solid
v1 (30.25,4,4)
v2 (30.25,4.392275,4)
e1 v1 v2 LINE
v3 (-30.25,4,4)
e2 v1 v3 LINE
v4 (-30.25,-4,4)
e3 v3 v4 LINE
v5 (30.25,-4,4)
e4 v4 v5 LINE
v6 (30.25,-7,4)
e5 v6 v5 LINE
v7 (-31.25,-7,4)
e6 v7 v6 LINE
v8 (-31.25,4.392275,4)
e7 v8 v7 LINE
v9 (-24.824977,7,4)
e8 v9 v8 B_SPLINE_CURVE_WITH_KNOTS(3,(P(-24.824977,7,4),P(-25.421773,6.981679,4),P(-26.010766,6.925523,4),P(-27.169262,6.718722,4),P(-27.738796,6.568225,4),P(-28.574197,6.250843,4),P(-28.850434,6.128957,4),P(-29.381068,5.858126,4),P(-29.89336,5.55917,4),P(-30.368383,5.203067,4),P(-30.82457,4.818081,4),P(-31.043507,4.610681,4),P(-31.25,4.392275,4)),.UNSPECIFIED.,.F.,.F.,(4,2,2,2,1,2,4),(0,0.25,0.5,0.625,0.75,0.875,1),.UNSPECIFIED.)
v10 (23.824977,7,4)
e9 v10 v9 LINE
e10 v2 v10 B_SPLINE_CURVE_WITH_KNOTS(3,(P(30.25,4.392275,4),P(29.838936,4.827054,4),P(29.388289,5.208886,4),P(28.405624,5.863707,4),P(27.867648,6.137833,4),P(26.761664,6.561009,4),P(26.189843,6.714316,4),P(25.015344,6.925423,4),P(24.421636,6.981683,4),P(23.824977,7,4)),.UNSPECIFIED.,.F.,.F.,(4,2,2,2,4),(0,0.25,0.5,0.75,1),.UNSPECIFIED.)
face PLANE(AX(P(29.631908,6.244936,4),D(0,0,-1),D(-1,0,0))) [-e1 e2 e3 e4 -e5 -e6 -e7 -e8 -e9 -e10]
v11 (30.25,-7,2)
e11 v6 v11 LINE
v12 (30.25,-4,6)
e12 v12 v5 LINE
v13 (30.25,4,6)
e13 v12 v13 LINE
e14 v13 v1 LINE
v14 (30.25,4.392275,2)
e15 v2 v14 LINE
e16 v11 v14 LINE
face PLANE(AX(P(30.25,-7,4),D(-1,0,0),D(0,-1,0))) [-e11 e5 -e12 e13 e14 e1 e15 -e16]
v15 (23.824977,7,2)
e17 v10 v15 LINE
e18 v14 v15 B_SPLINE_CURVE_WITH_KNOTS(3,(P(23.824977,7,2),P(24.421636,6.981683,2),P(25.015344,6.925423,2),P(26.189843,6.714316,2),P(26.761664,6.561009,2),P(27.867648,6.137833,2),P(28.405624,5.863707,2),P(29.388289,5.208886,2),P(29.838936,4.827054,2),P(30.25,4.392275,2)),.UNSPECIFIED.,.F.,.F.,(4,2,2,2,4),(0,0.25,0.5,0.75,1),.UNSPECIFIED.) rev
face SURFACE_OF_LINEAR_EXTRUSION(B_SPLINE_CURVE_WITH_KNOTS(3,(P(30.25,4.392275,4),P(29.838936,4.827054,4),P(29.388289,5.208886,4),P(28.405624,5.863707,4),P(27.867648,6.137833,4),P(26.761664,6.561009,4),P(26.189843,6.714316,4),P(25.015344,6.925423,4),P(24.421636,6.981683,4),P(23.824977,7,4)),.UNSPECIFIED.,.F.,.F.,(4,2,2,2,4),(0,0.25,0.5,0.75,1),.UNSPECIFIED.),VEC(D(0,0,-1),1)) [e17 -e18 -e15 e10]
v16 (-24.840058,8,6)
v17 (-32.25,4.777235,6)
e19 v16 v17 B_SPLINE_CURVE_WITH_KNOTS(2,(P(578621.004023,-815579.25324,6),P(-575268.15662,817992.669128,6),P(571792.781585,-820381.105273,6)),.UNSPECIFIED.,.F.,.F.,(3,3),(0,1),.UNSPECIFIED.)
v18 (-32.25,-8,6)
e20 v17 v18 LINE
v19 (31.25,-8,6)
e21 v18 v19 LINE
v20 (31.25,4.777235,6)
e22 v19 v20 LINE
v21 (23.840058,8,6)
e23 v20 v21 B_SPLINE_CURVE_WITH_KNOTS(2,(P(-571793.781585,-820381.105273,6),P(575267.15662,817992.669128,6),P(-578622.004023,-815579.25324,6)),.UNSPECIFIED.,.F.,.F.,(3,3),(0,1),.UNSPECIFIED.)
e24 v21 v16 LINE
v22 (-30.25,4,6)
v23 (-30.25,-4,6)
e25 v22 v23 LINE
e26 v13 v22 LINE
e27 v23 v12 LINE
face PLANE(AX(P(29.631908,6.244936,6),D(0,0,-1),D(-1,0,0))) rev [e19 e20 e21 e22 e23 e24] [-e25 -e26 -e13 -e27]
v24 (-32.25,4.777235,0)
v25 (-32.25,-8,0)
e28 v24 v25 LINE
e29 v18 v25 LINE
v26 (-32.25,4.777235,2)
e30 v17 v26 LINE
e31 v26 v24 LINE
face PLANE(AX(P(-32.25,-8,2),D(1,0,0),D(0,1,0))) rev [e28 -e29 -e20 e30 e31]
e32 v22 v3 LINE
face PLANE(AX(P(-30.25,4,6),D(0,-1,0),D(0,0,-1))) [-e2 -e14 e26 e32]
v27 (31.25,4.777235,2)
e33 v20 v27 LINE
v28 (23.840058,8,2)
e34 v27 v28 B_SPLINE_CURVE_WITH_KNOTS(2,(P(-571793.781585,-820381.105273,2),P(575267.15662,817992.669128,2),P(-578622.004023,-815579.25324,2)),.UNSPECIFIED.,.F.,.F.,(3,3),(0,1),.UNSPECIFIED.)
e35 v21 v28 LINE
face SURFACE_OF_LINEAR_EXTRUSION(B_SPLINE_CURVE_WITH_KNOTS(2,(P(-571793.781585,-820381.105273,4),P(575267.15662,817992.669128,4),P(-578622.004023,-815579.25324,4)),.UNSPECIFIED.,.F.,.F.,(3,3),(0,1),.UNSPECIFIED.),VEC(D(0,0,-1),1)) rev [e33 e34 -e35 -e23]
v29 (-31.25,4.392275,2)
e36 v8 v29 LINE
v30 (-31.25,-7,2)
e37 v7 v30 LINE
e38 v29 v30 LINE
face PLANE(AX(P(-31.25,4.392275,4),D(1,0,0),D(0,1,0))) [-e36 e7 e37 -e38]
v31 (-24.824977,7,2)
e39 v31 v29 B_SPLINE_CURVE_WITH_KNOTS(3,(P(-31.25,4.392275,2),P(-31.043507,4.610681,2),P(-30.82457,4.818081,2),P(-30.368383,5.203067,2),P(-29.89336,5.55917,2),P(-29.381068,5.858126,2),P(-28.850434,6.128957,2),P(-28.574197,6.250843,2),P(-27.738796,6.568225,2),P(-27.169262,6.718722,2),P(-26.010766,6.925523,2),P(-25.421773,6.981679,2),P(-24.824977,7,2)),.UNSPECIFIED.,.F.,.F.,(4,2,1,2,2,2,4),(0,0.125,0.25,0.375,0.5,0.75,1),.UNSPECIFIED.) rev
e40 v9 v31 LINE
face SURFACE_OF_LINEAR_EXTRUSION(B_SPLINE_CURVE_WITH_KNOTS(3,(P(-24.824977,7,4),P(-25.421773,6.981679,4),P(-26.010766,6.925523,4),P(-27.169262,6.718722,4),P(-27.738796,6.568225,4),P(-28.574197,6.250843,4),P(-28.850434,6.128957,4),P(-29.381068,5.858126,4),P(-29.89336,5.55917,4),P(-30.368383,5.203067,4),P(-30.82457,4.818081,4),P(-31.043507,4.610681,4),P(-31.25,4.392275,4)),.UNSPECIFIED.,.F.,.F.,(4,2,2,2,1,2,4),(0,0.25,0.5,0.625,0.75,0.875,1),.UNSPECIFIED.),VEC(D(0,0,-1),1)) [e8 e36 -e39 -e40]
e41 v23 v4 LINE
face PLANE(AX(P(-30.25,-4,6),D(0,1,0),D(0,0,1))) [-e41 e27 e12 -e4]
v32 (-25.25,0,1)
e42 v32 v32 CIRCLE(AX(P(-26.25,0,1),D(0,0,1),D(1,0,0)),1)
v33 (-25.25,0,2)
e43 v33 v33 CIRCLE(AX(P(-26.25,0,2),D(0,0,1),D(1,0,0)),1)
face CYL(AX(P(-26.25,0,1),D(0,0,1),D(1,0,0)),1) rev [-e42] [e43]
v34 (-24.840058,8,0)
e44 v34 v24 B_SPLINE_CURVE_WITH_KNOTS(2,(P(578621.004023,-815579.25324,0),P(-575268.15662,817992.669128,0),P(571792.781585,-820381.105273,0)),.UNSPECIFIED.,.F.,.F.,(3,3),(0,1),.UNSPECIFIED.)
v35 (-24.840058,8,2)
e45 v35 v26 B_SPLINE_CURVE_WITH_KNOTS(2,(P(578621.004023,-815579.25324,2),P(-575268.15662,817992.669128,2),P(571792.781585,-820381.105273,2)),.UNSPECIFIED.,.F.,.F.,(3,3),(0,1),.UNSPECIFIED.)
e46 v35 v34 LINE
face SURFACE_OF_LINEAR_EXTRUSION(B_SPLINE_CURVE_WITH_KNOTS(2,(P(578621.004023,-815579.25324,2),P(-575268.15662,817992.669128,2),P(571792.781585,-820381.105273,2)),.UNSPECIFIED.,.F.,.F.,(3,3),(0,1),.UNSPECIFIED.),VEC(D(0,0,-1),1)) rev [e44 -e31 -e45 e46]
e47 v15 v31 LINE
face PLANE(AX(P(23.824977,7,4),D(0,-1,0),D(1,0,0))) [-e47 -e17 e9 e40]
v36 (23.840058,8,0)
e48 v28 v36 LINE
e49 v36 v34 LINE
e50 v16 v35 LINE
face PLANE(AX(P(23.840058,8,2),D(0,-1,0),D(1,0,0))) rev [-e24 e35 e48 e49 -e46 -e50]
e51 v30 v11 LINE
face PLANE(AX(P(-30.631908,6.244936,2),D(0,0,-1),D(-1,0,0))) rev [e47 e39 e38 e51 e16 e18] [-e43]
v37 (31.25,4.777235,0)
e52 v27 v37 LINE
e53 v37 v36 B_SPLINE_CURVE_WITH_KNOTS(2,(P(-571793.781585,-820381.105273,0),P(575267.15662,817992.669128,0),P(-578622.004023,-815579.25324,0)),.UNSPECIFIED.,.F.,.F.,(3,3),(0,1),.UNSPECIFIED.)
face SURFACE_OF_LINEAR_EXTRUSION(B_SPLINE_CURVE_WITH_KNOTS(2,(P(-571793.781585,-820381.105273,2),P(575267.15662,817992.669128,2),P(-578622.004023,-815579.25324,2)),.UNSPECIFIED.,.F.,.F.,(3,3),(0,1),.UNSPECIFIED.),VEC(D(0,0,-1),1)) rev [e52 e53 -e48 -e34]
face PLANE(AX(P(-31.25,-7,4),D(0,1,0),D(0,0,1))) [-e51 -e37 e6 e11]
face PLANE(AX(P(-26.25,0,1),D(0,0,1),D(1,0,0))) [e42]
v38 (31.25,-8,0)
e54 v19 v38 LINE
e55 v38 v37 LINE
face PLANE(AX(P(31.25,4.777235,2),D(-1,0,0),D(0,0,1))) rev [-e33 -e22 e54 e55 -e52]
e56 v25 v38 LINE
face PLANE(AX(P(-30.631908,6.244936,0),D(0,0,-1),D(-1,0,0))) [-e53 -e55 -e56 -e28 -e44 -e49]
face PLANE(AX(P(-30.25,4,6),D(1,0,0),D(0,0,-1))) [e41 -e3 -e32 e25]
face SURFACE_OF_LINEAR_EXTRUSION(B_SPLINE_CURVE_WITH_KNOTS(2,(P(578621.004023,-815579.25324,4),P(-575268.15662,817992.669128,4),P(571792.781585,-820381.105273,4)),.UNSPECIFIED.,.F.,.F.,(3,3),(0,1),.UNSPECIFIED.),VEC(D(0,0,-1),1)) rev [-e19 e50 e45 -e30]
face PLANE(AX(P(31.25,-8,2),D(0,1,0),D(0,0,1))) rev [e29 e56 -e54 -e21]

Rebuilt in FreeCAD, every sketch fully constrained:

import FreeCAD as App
import Part
import Sketcher
Q = App.Units.Quantity


def add_polygon(sketch, points):
    """Adds a closed chain of lines whose ends are joined by coincident constraints."""
    first, n = sketch.GeometryCount, len(points)
    for a, b in zip(points, points[1:] + points[:1]):
        sketch.addGeometry(Part.LineSegment(App.Vector(*a, 0), App.Vector(*b, 0)), False)
    for i in range(n):
        sketch.addConstraint(Sketcher.Constraint("Coincident", first + i, 2, first + (i + 1) % n, 1))

doc = App.newDocument("Part")
body = doc.addObject("PartDesign::Body", "Body")

sketch1 = body.newObject("Sketcher::SketchObject", "Sketch")
sketch1.AttachmentSupport = (doc.getObject("XY_Plane"), [""])
sketch1.MapMode = "FlatFace"
sketch1.addGeometry([
    Part.LineSegment(App.Vector(23.840058, 8, 0), App.Vector(-24.840058, 8, 0)),
    Part.BSplineCurve([App.Vector(-24.840058, 8, 0), App.Vector(-29.579374, 7.859454, 0), App.Vector(-32.25, 4.777235, 0)], [3, 3], [0, 1], False, 2, [1, 1, 1], False),
    Part.LineSegment(App.Vector(-32.25, 4.777235, 0), App.Vector(-32.25, -8, 0)),
    Part.LineSegment(App.Vector(-32.25, -8, 0), App.Vector(31.25, -8, 0)),
    Part.LineSegment(App.Vector(31.25, -8, 0), App.Vector(31.25, 4.777235, 0)),
    Part.BSplineCurve([App.Vector(23.840058, 8, 0), App.Vector(28.579374, 7.859454, 0), App.Vector(31.25, 4.777235, 0)], [3, 3], [0, 1], False, 2, [1, 1, 1], False),
], False)
sketch1.addConstraint([
    Sketcher.Constraint("Block", 1),
    Sketcher.Constraint("Block", 5),
    Sketcher.Constraint("Coincident", 0, 2, 1, 1),
    Sketcher.Constraint("Coincident", 1, 2, 2, 1),
    Sketcher.Constraint("Coincident", 2, 2, 3, 1),
    Sketcher.Constraint("Coincident", 3, 2, 4, 1),
    Sketcher.Constraint("Coincident", 4, 2, 5, 2),
    Sketcher.Constraint("Coincident", 5, 1, 0, 1),
    Sketcher.Constraint("Vertical", 2),
    Sketcher.Constraint("Horizontal", 3),
    Sketcher.Constraint("Vertical", 4),
    Sketcher.Constraint("DistanceY", 2, 2, -1, 1, Q("8 mm")),
])
pad1 = body.newObject("PartDesign::Pad", "Pad")
pad1.Profile = sketch1
pad1.Length = 2

sketch2 = body.newObject("Sketcher::SketchObject", "Sketch001")
sketch2.AttachmentSupport = (doc.getObject("XY_Plane"), [""])
sketch2.MapMode = "FlatFace"
sketch2.AttachmentOffset = App.Placement(App.Vector(0, 0, 2), App.Rotation())
sketch2.addGeometry([
    Part.LineSegment(App.Vector(-32.25, -8, 0), App.Vector(31.25, -8, 0)),
    Part.LineSegment(App.Vector(31.25, -8, 0), App.Vector(31.25, 4.777235, 0)),
    Part.BSplineCurve([App.Vector(31.25, 4.777235, 0), App.Vector(28.579374, 7.859454, 0), App.Vector(23.840058, 8, 0)], [3, 3], [0, 1], False, 2, [1, 1, 1], False),
    Part.LineSegment(App.Vector(23.840058, 8, 0), App.Vector(-24.840058, 8, 0)),
    Part.BSplineCurve([App.Vector(-24.840058, 8, 0), App.Vector(-29.579374, 7.859454, 0), App.Vector(-32.25, 4.777235, 0)], [3, 3], [0, 1], False, 2, [1, 1, 1], False),
    Part.LineSegment(App.Vector(-32.25, 4.777235, 0), App.Vector(-32.25, -8, 0)),
    Part.LineSegment(App.Vector(30.25, -7, 0), App.Vector(-31.25, -7, 0)),
    Part.LineSegment(App.Vector(-31.25, -7, 0), App.Vector(-31.25, 4.392275, 0)),
    Part.BSplineCurve([App.Vector(-24.824977, 7, 0), App.Vector(-25.421773, 6.981679, 0), App.Vector(-26.010766, 6.925523, 0), App.Vector(-27.169262, 6.718722, 0), App.Vector(-27.738796, 6.568225, 0), App.Vector(-28.574197, 6.250843, 0), App.Vector(-28.850434, 6.128957, 0), App.Vector(-29.381068, 5.858126, 0), App.Vector(-29.89336, 5.55917, 0), App.Vector(-30.368383, 5.203067, 0), App.Vector(-30.82457, 4.818081, 0), App.Vector(-31.043507, 4.610681, 0), App.Vector(-31.25, 4.392275, 0)], [4, 2, 2, 2, 1, 2, 4], [0, 0.25, 0.5, 0.625, 0.75, 0.875, 1], False, 3, [1, 1, 1, 1, 1, 1, 1, 1, 1, 1, 1, 1, 1], False),
    Part.LineSegment(App.Vector(-24.824977, 7, 0), App.Vector(23.824977, 7, 0)),
    Part.BSplineCurve([App.Vector(30.25, 4.392275, 0), App.Vector(29.838936, 4.827054, 0), App.Vector(29.388289, 5.208886, 0), App.Vector(28.405624, 5.863707, 0), App.Vector(27.867648, 6.137833, 0), App.Vector(26.761664, 6.561009, 0), App.Vector(26.189843, 6.714316, 0), App.Vector(25.015344, 6.925423, 0), App.Vector(24.421636, 6.981683, 0), App.Vector(23.824977, 7, 0)], [4, 2, 2, 2, 4], [0, 0.25, 0.5, 0.75, 1], False, 3, [1, 1, 1, 1, 1, 1, 1, 1, 1, 1], False),
    Part.LineSegment(App.Vector(30.25, 4.392275, 0), App.Vector(30.25, -7, 0)),
], False)
sketch2.addConstraint([
    Sketcher.Constraint("Block", 2),
    Sketcher.Constraint("Block", 4),
    Sketcher.Constraint("Block", 8),
    Sketcher.Constraint("Block", 10),
    Sketcher.Constraint("Coincident", 0, 2, 1, 1),
    Sketcher.Constraint("Coincident", 1, 2, 2, 1),
    Sketcher.Constraint("Coincident", 2, 2, 3, 1),
    Sketcher.Constraint("Coincident", 3, 2, 4, 1),
    Sketcher.Constraint("Coincident", 4, 2, 5, 1),
    Sketcher.Constraint("Coincident", 5, 2, 0, 1),
    Sketcher.Constraint("Coincident", 6, 2, 7, 1),
    Sketcher.Constraint("Coincident", 7, 2, 8, 2),
    Sketcher.Constraint("Coincident", 8, 1, 9, 1),
    Sketcher.Constraint("Coincident", 9, 2, 10, 2),
    Sketcher.Constraint("Coincident", 10, 1, 11, 1),
    Sketcher.Constraint("Coincident", 11, 2, 6, 1),
    Sketcher.Constraint("Horizontal", 0),
    Sketcher.Constraint("Vertical", 1),
    Sketcher.Constraint("Vertical", 5),
    Sketcher.Constraint("Horizontal", 6),
    Sketcher.Constraint("Vertical", 7),
    Sketcher.Constraint("Vertical", 11),
    Sketcher.Constraint("DistanceY", 0, 2, -1, 1, Q("8 mm")),
    Sketcher.Constraint("DistanceY", 6, 2, -1, 1, Q("7 mm")),
])
pad2 = body.newObject("PartDesign::Pad", "Pad001")
pad2.Profile = sketch2
pad2.Length = 2

sketch3 = body.newObject("Sketcher::SketchObject", "Sketch002")
sketch3.AttachmentSupport = (doc.getObject("XY_Plane"), [""])
sketch3.MapMode = "FlatFace"
sketch3.AttachmentOffset = App.Placement(App.Vector(0, 0, 4), App.Rotation())
sketch3.addGeometry(Part.LineSegment(App.Vector(-32.25, -8, 0), App.Vector(31.25, -8, 0)), False)
sketch3.addGeometry(Part.LineSegment(App.Vector(31.25, -8, 0), App.Vector(31.25, 4.777235, 0)), False)
sketch3.addGeometry(Part.BSplineCurve([App.Vector(31.25, 4.777235, 0), App.Vector(28.579374, 7.859454, 0), App.Vector(23.840058, 8, 0)], [3, 3], [0, 1], False, 2, [1, 1, 1], False), False)
sketch3.addGeometry(Part.LineSegment(App.Vector(23.840058, 8, 0), App.Vector(-24.840058, 8, 0)), False)
sketch3.addGeometry(Part.BSplineCurve([App.Vector(-24.840058, 8, 0), App.Vector(-29.579374, 7.859454, 0), App.Vector(-32.25, 4.777235, 0)], [3, 3], [0, 1], False, 2, [1, 1, 1], False), False)
sketch3.addGeometry(Part.LineSegment(App.Vector(-32.25, 4.777235, 0), App.Vector(-32.25, -8, 0)), False)
add_polygon(sketch3, [(30.25, -4), (-30.25, -4), (-30.25, 4), (30.25, 4)])
sketch3.addConstraint([
    Sketcher.Constraint("Block", 2),
    Sketcher.Constraint("Block", 4),
    Sketcher.Constraint("Coincident", 0, 2, 1, 1),
    Sketcher.Constraint("Coincident", 1, 2, 2, 1),
    Sketcher.Constraint("Coincident", 2, 2, 3, 1),
    Sketcher.Constraint("Coincident", 3, 2, 4, 1),
    Sketcher.Constraint("Coincident", 4, 2, 5, 1),
    Sketcher.Constraint("Coincident", 5, 2, 0, 1),
    Sketcher.Constraint("Horizontal", 0),
    Sketcher.Constraint("Vertical", 1),
    Sketcher.Constraint("Vertical", 5),
    Sketcher.Constraint("Horizontal", 6),
    Sketcher.Constraint("Vertical", 7),
    Sketcher.Constraint("Horizontal", 8),
    Sketcher.Constraint("Vertical", 9),
    Sketcher.Constraint("Symmetric", 6, 2, 8, 2, -1, 1),
    Sketcher.Constraint("DistanceY", 7, 1, 7, 2, Q("8 mm")),
    Sketcher.Constraint("DistanceX", 6, 2, 6, 1, Q("60.5 mm")),
    Sketcher.Constraint("DistanceY", 0, 2, -1, 1, Q("8 mm")),
])
pad3 = body.newObject("PartDesign::Pad", "Pad002")
pad3.Profile = sketch3
pad3.Length = 2

sketch4 = body.newObject("Sketcher::SketchObject", "Sketch003")
sketch4.AttachmentSupport = (doc.getObject("XY_Plane"), [""])
sketch4.MapMode = "FlatFace"
sketch4.AttachmentOffset = App.Placement(App.Vector(0, 0, 2), App.Rotation())
sketch4.addGeometry(Part.Circle(App.Vector(-26.2, 0, 0), App.Vector(0, 0, 1), 1), False)
sketch4.addConstraint([
    Sketcher.Constraint("PointOnObject", 0, 3, -1),
    Sketcher.Constraint("Diameter", 0, Q("2 mm")),
    Sketcher.Constraint("DistanceX", 0, 3, -1, 1, Q("26.25 mm")),
])
pocket1 = body.newObject("PartDesign::Pocket", "Pocket")
pocket1.Profile = sketch4
pocket1.Length = 1

sketch5 = body.newObject("Sketcher::SketchObject", "Sketch004")
sketch5.AttachmentSupport = (doc.getObject("XY_Plane"), [""])
sketch5.MapMode = "FlatFace"
sketch5.addGeometry([
    Part.LineSegment(App.Vector(-31.25, 8, 0), App.Vector(-24.840058, 8, 0)),
    Part.BSplineCurve([App.Vector(-24.840058, 8, 0), App.Vector(-29.579374, 7.859454, 0), App.Vector(-32.25, 4.777235, 0)], [3, 3], [0, 1], False, 2, [1, 1, 1], False),
    Part.LineSegment(App.Vector(-32.25, 4.777235, 0), App.Vector(-31.25, 8, 0)),
], False)
sketch5.addConstraint([
    Sketcher.Constraint("Block", 1),
    Sketcher.Constraint("Coincident", 0, 2, 1, 1),
    Sketcher.Constraint("Coincident", 1, 2, 2, 1),
    Sketcher.Constraint("Coincident", 2, 2, 0, 1),
    Sketcher.Constraint("Horizontal", 0),
    Sketcher.Constraint("DistanceX", 2, 2, -1, 1, Q("31.25 mm")),
])
pocket2 = body.newObject("PartDesign::Pocket", "Pocket001")
pocket2.Profile = sketch5
pocket2.Length = 1
pocket2.Reversed = True
doc.recompute()

mirrored = body.newObject("PartDesign::Mirrored", "Mirrored")
mirrored.Originals = [pocket2]
mirrored.MirrorPlane = (doc.getObject("YZ_Plane"), [""])
body.Tip = mirrored

doc.recompute()
